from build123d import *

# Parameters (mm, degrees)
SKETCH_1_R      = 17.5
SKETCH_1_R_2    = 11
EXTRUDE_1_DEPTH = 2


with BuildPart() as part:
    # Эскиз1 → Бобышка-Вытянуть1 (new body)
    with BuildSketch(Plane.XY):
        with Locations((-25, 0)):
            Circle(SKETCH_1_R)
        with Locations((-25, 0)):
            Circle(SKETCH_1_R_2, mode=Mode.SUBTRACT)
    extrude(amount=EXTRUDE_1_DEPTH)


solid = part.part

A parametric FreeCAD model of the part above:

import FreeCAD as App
import Part
import Sketcher
from FreeCAD import Vector
Q = App.Units.Quantity

doc = App.newDocument("Part")
body = doc.addObject("PartDesign::Body", "Body")

sketch1 = body.newObject("Sketcher::SketchObject", "Sketch")
sketch1.AttachmentSupport = (doc.getObject("XY_Plane"), [""])
sketch1.MapMode = "FlatFace"
sketch1.addGeometry(Part.Circle(Vector(-25, 0, 0), Vector(0, 0, 1), 18), False)
sketch1.addGeometry(Part.Circle(Vector(-25, 0, 0), Vector(0, 0, 1), 11), False)
sketch1.addConstraint(Sketcher.Constraint("Coincident", 1, 3, 0, 3))
sketch1.addConstraint(Sketcher.Constraint("PointOnObject", 0, 3, -1))
sketch1.addConstraint(Sketcher.Constraint("Diameter", 0, Q("35 mm")))
sketch1.addConstraint(Sketcher.Constraint("Diameter", 1, Q("22 mm")))
sketch1.addConstraint(Sketcher.Constraint("DistanceX", 0, 3, -1, 1, Q("25 mm")))
pad1 = body.newObject("PartDesign::Pad", "Pad")
pad1.Profile = sketch1
pad1.Length = 2

doc.recompute()
